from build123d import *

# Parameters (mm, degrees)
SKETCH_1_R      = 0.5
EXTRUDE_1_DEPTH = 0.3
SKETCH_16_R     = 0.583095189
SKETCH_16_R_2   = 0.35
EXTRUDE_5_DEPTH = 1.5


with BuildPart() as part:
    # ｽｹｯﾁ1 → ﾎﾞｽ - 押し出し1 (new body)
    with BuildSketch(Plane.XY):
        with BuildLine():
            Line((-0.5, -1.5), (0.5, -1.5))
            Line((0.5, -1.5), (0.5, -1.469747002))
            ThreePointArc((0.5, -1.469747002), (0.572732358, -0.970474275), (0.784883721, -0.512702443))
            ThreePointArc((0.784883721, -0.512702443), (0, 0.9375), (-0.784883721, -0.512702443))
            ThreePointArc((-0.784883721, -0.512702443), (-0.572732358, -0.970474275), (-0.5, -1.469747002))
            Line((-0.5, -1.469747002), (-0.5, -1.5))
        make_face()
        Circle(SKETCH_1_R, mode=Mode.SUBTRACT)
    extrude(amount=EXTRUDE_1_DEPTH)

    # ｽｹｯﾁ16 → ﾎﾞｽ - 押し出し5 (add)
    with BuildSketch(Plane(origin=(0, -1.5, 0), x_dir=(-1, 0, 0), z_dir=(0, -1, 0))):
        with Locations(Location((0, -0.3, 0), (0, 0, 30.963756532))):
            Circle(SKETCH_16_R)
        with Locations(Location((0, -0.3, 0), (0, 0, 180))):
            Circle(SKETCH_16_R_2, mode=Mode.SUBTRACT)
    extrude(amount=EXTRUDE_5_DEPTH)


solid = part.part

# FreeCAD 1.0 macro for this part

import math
import FreeCAD as App
import Part
import Sketcher
from FreeCAD import Vector

doc = App.newDocument("Part")
body = doc.addObject("PartDesign::Body", "Body")

sketch1 = body.newObject("Sketcher::SketchObject", "Sketch")
sketch1.AttachmentSupport = (doc.getObject("XY_Plane"), [""])
sketch1.MapMode = "FlatFace"
sketch1.addGeometry(Part.LineSegment(Vector(-0.5, -1.5, 0), Vector(0.5, -1.5, 0)), False)
sketch1.addGeometry(Part.LineSegment(Vector(0.5, -1.5, 0), Vector(0.5, -1.469747, 0)), False)
sketch1.addGeometry(Part.ArcOfCircle(Part.Circle(Vector(2.25, -1.469747, 0), Vector(0, 0, 1), 1.75), math.radians(146.846592), math.radians(180)), False)
sketch1.addGeometry(Part.ArcOfCircle(Part.Circle(Vector(0, 0, 0), Vector(0, 0, 1), 0.9375), math.radians(-33.153408), math.radians(213.153408)), False)
sketch1.addGeometry(Part.ArcOfCircle(Part.Circle(Vector(-2.25, -1.469747, 0), Vector(0, 0, 1), 1.75), math.radians(0), math.radians(33.153408)), False)
sketch1.addGeometry(Part.LineSegment(Vector(-0.5, -1.469747, 0), Vector(-0.5, -1.5, 0)), False)
sketch1.addGeometry(Part.Circle(Vector(0, 0, 0), Vector(0, 0, 1), 0.5), False)
sketch1.addConstraint(Sketcher.Constraint("Coincident", 0, 2, 1, 1))
sketch1.addConstraint(Sketcher.Constraint("Tangent", 1, 2, 2, 2))
sketch1.addConstraint(Sketcher.Constraint("Tangent", 2, 1, 3, 1))
sketch1.addConstraint(Sketcher.Constraint("Tangent", 3, 2, 4, 2))
sketch1.addConstraint(Sketcher.Constraint("Tangent", 4, 1, 5, 1))
sketch1.addConstraint(Sketcher.Constraint("Coincident", 5, 2, 0, 1))
sketch1.addConstraint(Sketcher.Constraint("Horizontal", 0))
sketch1.addConstraint(Sketcher.Constraint("Vertical", 1))
sketch1.addConstraint(Sketcher.Constraint("Vertical", 5))
sketch1.addConstraint(Sketcher.Constraint("Coincident", 3, 3, -1, 1))
sketch1.addConstraint(Sketcher.Constraint("Coincident", 6, 3, -1, 1))
sketch1.addConstraint(Sketcher.Constraint("Equal", 2, 4))
sketch1.addConstraint(Sketcher.Constraint("Horizontal", 2, 3, 4, 3))
sketch1.addConstraint(Sketcher.Constraint("Diameter", 6, 1.0))
sketch1.addConstraint(Sketcher.Constraint("DistanceX", 0, 1, 0, 2, 1.0))
sketch1.addConstraint(Sketcher.Constraint("Radius", 2, 1.75))
sketch1.addConstraint(Sketcher.Constraint("DistanceY", 0, 2, -1, 1, 1.5))
sketch1.addConstraint(Sketcher.Constraint("Radius", 3, 0.9375))
pad1 = body.newObject("PartDesign::Pad", "Pad")
pad1.Profile = sketch1
pad1.Length = 0.3

sketch2 = body.newObject("Sketcher::SketchObject", "Sketch001")
sketch2.AttachmentSupport = (doc.getObject("XZ_Plane"), [""])
sketch2.MapMode = "FlatFace"
sketch2.AttachmentOffset = App.Placement(Vector(0, 0, 1.5), App.Rotation())
sketch2.addGeometry(Part.Circle(Vector(0, 0.3, 0), Vector(0, 0, 1), 0.583095), False)
sketch2.addGeometry(Part.Circle(Vector(0, 0.3, 0), Vector(0, 0, 1), 0.35), False)
sketch2.addConstraint(Sketcher.Constraint("Coincident", 1, 3, 0, 3))
sketch2.addConstraint(Sketcher.Constraint("PointOnObject", 0, 3, -2))
sketch2.addConstraint(Sketcher.Constraint("Diameter", 1, 0.7))
sketch2.addConstraint(Sketcher.Constraint("DistanceY", -1, 1, 0, 3, 0.3))
sketch2.addConstraint(Sketcher.Constraint("Diameter", 0, 1.16619))
pad2 = body.newObject("PartDesign::Pad", "Pad001")
pad2.Profile = sketch2
pad2.Length = 1.5

doc.recompute()
